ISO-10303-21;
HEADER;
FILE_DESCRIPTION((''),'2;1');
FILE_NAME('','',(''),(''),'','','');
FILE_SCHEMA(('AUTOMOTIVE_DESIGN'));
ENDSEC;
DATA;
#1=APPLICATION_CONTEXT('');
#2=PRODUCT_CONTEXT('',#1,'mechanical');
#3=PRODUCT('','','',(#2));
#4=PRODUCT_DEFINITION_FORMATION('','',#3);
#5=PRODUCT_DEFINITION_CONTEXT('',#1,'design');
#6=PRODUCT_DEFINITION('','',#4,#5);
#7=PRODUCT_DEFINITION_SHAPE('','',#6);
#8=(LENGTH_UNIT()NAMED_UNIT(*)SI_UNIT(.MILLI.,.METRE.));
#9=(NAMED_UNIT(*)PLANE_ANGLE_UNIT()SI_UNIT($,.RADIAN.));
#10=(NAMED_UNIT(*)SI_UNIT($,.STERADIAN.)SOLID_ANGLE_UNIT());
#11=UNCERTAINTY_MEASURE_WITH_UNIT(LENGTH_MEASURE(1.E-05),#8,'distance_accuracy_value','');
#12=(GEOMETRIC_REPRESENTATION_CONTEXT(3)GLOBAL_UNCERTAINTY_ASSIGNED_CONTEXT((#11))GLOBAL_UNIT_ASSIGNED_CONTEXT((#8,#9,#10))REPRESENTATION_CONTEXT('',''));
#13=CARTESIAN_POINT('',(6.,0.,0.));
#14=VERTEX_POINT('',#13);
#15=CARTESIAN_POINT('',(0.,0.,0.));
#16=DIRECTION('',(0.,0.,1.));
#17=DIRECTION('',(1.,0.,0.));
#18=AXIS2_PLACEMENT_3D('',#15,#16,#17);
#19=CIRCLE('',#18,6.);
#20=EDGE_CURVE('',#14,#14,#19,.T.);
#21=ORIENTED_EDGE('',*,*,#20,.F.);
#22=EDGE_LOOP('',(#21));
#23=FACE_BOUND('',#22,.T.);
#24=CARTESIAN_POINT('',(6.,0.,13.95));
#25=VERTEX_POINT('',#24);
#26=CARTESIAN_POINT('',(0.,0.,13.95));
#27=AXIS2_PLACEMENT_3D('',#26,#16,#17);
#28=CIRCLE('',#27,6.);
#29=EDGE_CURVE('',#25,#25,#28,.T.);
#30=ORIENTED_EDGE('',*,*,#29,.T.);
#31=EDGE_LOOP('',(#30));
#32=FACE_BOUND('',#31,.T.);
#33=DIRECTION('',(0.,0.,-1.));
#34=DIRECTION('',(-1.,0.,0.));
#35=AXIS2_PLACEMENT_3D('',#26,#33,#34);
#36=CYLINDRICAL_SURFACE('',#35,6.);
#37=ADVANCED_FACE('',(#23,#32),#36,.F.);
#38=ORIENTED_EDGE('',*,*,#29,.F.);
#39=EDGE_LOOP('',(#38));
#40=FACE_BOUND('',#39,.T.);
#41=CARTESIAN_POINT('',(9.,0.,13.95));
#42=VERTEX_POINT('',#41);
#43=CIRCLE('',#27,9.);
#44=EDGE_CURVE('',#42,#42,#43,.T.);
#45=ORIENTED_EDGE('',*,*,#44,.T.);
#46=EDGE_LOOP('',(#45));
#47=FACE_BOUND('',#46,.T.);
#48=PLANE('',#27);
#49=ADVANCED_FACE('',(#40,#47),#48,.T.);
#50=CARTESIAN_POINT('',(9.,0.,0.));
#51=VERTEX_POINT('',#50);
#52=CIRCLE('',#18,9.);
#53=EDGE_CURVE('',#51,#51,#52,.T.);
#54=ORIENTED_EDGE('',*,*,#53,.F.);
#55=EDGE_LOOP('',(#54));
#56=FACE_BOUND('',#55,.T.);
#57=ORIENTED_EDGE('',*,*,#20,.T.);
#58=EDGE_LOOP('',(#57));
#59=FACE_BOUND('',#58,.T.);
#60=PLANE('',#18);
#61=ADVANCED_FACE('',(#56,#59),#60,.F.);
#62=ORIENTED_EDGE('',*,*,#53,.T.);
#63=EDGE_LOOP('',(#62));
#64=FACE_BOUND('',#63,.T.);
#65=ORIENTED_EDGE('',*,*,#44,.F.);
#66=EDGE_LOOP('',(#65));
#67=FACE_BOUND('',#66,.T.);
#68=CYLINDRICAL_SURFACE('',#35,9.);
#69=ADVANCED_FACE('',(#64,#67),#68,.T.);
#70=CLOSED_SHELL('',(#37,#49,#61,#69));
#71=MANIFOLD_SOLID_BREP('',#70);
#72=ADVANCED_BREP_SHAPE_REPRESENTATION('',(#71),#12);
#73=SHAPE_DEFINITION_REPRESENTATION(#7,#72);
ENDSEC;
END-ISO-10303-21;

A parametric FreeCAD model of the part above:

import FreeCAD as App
import Part
import Sketcher

V = App.Vector

doc = App.newDocument("Part")
body = doc.addObject("PartDesign::Body", "Body")

sketch1 = doc.addObject("Sketcher::SketchObject", "Sketch")
body.addObject(sketch1)
sketch1.AttachmentSupport = (doc.XY_Plane, [""])
sketch1.MapMode = "FlatFace"
sketch1.addGeometry(Part.Circle(V(0, 0, 0), V(0, 0, 1), 9), False)
sketch1.addGeometry(Part.Circle(V(0, 0, 0), V(0, 0, 1), 6), False)
sketch1.addConstraint(Sketcher.Constraint("Coincident", 0, 3, -1, 1))
sketch1.addConstraint(Sketcher.Constraint("Coincident", 1, 3, -1, 1))
sketch1.addConstraint(Sketcher.Constraint("Diameter", 0, 18.0))
sketch1.addConstraint(Sketcher.Constraint("Diameter", 1, 12.0))
pad1 = doc.addObject("PartDesign::Pad", "Pad")
body.addObject(pad1)
pad1.Profile = sketch1
pad1.Length = 13.95

doc.recompute()
